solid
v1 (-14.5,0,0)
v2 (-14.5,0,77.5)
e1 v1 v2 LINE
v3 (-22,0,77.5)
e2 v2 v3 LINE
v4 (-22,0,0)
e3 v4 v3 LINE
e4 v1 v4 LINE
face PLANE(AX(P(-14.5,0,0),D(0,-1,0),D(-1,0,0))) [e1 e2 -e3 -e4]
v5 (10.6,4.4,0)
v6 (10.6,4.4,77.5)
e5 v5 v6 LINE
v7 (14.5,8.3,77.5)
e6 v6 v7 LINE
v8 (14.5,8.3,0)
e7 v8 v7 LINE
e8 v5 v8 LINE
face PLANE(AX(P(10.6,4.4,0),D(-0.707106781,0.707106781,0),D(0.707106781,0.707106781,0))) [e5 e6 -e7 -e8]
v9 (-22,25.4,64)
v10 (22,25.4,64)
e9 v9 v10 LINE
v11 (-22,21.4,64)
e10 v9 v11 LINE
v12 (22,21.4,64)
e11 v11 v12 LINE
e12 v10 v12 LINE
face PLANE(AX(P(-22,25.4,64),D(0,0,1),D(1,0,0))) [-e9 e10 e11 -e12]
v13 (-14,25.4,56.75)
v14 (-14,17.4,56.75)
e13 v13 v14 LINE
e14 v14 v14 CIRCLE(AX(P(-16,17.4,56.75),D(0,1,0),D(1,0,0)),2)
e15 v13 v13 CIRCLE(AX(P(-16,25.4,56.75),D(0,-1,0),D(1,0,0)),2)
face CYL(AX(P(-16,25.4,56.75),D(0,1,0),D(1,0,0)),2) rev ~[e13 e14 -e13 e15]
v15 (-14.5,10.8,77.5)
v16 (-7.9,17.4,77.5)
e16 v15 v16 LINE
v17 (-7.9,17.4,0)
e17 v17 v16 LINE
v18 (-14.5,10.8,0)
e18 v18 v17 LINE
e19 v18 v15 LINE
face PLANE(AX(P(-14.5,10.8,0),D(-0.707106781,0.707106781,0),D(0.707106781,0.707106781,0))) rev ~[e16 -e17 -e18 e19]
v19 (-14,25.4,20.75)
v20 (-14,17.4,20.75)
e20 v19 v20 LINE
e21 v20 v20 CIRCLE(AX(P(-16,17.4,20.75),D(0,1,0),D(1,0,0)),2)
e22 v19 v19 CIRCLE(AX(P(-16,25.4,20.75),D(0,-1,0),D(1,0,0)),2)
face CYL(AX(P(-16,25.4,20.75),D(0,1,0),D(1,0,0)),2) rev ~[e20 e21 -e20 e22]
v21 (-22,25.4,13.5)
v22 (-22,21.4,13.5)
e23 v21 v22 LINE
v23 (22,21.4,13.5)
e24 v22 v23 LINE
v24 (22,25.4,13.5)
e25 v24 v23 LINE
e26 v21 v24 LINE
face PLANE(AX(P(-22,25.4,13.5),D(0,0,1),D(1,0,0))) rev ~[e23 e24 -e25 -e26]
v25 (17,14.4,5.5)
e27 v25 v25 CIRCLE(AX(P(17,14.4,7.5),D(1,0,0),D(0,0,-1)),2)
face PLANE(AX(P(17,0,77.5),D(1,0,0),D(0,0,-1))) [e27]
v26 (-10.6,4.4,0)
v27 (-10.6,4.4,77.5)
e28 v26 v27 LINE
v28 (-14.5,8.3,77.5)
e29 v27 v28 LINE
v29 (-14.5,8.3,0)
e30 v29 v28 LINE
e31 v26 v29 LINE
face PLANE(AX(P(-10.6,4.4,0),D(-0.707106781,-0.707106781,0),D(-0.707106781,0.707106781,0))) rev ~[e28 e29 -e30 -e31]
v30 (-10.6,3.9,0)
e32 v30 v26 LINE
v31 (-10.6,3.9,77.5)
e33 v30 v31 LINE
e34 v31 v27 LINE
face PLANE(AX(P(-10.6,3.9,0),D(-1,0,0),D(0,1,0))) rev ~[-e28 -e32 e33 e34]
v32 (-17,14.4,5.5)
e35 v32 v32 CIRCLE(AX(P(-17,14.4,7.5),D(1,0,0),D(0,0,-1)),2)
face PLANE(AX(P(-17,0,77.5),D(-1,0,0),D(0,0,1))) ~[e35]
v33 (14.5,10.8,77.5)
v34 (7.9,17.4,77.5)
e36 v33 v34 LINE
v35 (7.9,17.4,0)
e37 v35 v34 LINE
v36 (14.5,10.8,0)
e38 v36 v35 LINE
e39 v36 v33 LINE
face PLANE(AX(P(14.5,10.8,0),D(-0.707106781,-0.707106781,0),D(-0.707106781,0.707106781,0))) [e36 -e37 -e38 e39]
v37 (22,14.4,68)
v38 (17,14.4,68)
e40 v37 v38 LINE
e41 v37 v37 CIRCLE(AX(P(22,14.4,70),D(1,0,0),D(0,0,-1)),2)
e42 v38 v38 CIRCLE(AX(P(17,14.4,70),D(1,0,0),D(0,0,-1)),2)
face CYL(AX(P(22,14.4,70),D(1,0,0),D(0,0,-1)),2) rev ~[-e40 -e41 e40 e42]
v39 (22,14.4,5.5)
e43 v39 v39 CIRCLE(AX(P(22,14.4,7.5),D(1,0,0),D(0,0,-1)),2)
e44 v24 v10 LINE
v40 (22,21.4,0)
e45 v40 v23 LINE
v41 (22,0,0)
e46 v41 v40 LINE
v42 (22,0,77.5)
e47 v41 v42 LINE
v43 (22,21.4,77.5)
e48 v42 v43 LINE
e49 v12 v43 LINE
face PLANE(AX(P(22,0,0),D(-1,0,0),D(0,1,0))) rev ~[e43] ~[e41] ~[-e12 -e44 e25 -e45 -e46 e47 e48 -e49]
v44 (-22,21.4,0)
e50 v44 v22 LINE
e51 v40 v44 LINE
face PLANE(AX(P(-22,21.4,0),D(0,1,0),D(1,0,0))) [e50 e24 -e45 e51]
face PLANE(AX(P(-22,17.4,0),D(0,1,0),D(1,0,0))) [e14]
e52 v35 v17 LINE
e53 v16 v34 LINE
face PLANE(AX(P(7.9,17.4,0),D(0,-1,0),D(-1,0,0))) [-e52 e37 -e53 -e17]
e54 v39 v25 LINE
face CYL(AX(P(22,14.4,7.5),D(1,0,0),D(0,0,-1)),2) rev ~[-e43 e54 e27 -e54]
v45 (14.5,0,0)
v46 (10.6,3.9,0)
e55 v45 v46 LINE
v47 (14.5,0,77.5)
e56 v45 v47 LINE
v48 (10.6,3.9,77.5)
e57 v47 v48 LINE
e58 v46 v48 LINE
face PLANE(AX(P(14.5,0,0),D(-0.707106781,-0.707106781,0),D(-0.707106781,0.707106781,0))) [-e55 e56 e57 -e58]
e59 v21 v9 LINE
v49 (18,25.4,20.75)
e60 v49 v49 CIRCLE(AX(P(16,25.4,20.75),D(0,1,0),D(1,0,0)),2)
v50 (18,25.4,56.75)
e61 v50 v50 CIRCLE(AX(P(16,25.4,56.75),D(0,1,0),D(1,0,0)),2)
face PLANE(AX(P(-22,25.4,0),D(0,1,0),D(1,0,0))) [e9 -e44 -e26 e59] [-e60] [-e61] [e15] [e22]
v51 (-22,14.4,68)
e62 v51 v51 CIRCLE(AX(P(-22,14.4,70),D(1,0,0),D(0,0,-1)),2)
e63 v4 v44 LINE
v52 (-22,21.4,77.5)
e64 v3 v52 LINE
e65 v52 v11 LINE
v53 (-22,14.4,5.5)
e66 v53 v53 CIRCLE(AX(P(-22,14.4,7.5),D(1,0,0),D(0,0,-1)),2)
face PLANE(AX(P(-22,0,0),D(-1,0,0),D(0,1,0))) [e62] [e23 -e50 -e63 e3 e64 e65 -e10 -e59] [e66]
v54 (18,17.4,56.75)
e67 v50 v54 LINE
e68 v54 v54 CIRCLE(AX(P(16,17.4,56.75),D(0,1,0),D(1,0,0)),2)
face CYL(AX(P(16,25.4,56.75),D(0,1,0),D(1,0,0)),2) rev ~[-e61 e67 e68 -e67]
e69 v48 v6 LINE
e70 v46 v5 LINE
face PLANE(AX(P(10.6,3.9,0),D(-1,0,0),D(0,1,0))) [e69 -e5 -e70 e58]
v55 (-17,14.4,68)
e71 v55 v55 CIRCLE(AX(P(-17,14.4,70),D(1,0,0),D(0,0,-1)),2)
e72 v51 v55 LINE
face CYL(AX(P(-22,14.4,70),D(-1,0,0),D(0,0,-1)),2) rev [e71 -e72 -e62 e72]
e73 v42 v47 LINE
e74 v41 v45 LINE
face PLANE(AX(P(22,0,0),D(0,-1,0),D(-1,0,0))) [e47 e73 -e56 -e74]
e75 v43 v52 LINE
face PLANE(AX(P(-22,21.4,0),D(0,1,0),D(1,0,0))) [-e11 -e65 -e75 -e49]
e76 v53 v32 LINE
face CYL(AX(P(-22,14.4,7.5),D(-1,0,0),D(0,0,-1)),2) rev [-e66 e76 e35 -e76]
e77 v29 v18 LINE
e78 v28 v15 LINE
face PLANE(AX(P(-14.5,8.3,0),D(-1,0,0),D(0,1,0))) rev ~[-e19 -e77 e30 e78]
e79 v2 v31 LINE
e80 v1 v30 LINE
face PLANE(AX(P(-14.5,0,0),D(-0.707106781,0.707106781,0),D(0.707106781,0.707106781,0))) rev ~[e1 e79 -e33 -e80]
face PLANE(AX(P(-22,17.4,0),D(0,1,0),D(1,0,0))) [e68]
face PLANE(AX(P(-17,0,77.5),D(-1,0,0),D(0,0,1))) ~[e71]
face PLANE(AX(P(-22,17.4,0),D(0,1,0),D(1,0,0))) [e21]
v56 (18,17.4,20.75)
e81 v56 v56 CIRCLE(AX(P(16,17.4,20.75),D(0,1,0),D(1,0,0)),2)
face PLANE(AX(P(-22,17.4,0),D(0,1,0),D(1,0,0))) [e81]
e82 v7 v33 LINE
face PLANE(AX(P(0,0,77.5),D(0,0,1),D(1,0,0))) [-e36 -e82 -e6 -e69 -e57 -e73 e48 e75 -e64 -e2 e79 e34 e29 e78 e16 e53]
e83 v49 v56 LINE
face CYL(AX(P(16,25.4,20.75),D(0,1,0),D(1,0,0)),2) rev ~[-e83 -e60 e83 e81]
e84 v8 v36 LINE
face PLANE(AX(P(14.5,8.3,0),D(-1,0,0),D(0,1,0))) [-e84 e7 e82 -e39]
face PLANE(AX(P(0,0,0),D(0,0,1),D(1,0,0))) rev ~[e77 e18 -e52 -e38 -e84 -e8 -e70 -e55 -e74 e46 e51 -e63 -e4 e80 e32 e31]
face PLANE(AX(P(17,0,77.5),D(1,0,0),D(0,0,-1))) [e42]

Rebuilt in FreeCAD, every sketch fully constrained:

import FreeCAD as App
import Part
import Sketcher
from FreeCAD import Vector


def add_polygon(sketch, points):
    """Adds a closed chain of lines whose ends are joined by coincident constraints."""
    first, n = sketch.GeometryCount, len(points)
    for a, b in zip(points, points[1:] + points[:1]):
        sketch.addGeometry(Part.LineSegment(App.Vector(*a, 0), App.Vector(*b, 0)), False)
    for i in range(n):
        sketch.addConstraint(Sketcher.Constraint("Coincident", first + i, 2, first + (i + 1) % n, 1))

doc = App.newDocument("Part")
params = doc.addObject("Spreadsheet::Sheet", "Params")
for row, (alias, value) in enumerate([
    ("sketch1_width", "44 mm"),
    ("sketch1_width2", "7.5 mm"),
    ("sketch1_height", "0.5 mm"),
    ("sketch1_height2", "2.5 mm"),
    ("sketch1_height3", "25.4 mm"),
    ("pad1_length", "77.5 mm"),
    ("sketch2_diameter", "4 mm"),
    ("pocket1_length", "8 mm"),
    ("sketch3_width", "44 mm"),
    ("sketch3_height", "13.5 mm"),
    ("pocket2_length", "4 mm"),
    ("sketch4_diameter", "4 mm"),
    ("pocket3_length", "5 mm"),
], start=1):
    params.set(f"A{row}", alias)
    params.set(f"B{row}", "=" + value)
    params.setAlias(f"B{row}", alias)

body = doc.addObject("PartDesign::Body", "Body")

# Sketch on XY plane
sketch1 = body.newObject("Sketcher::SketchObject", "Sketch")
sketch1.AttachmentSupport = (doc.getObject("XY_Plane"), [""])
sketch1.MapMode = "FlatFace"
add_polygon(sketch1, [(-22, 0), (-14.5, 0), (-10.6, 3.9), (-10.6, 4.4), (-14.5, 8.3), (-14.5, 10.8), (-7.9, 17.4), (7.9, 17.4), (14.5, 10.8), (14.5, 8.3), (10.6, 4.4), (10.6, 3.9), (14.5, 0), (22, 0), (22, 25.4), (-22, 25.4)])  # lines 0-15
sketch1.addConstraint(Sketcher.Constraint("Horizontal", 0))
sketch1.addConstraint(Sketcher.Constraint("Vertical", 2))
sketch1.addConstraint(Sketcher.Constraint("Vertical", 4))
sketch1.addConstraint(Sketcher.Constraint("Horizontal", 6))
sketch1.addConstraint(Sketcher.Constraint("Vertical", 8))
sketch1.addConstraint(Sketcher.Constraint("Vertical", 10))
sketch1.addConstraint(Sketcher.Constraint("Horizontal", 12))
sketch1.addConstraint(Sketcher.Constraint("Vertical", 13))
sketch1.addConstraint(Sketcher.Constraint("Horizontal", 14))
sketch1.addConstraint(Sketcher.Constraint("Vertical", 15))
sketch1.addConstraint(Sketcher.Constraint("Symmetric", 0, 2, 11, 2, -1, 1))
sketch1.addConstraint(Sketcher.Constraint("Symmetric", 4, 2, 7, 2, -2))
sketch1.addConstraint(Sketcher.Constraint("Symmetric", 2, 2, 9, 2, -2))
sketch1.addConstraint(Sketcher.Constraint("Symmetric", 12, 2, 15, 2, -2))
sketch1.addConstraint(Sketcher.Constraint("Perpendicular", 1, 3))
sketch1.addConstraint(Sketcher.Constraint("Perpendicular", 3, 5))
sketch1.addConstraint(Sketcher.Constraint("Perpendicular", 5, 7))
sketch1.addConstraint(Sketcher.Constraint("Perpendicular", 7, 9))
sketch1.addConstraint(Sketcher.Constraint("Perpendicular", 9, 11))
sketch1.addConstraint(Sketcher.Constraint("Horizontal", 3, 2, 8, 2))
sketch1.addConstraint(Sketcher.Constraint("Vertical", 0, 2, 3, 2))
sketch1.addConstraint(Sketcher.Constraint("DistanceX", 14, 2, 14, 1, 44.0))
sketch1.addConstraint(Sketcher.Constraint("DistanceX", 0, 1, 0, 2, 7.5))
sketch1.addConstraint(Sketcher.Constraint("DistanceY", 2, 1, 2, 2, 0.5))
sketch1.addConstraint(Sketcher.Constraint("DistanceY", 4, 1, 4, 2, 2.5))
sketch1.addConstraint(Sketcher.Constraint("DistanceY", 13, 1, 13, 2, 25.4))
sketch1.addConstraint(Sketcher.Constraint("DistanceX", 6, 1, 6, 2, 15.8))
sketch1.addConstraint(Sketcher.Constraint("DistanceY", 2, 2, 5, 2, 13.0))
sketch1.setExpression("Constraints[37]", "Params.sketch1_width")
sketch1.setExpression("Constraints[38]", "Params.sketch1_width2")
sketch1.setExpression("Constraints[39]", "Params.sketch1_height")
sketch1.setExpression("Constraints[40]", "Params.sketch1_height2")
sketch1.setExpression("Constraints[41]", "Params.sketch1_height3")
pad1 = body.newObject("PartDesign::Pad", "Pad")
pad1.Profile = sketch1
pad1.setExpression("Length", "Params.pad1_length")

# Sketch on XZ plane
sketch2 = body.newObject("Sketcher::SketchObject", "Sketch001")
sketch2.AttachmentSupport = (doc.getObject("XZ_Plane"), [""])
sketch2.MapMode = "FlatFace"
sketch2.AttachmentOffset = App.Placement(Vector(0, 0, -25.4), App.Rotation())
sketch2.addGeometry(Part.Circle(Vector(-16, 20.8, 0), Vector(0, 0, 1), 2), False)
sketch2.addGeometry(Part.Circle(Vector(-16, 56.8, 0), Vector(0, 0, 1), 2), False)
sketch2.addGeometry(Part.Circle(Vector(16, 20.8, 0), Vector(0, 0, 1), 2), False)
sketch2.addGeometry(Part.Circle(Vector(16, 56.8, 0), Vector(0, 0, 1), 2), False)
sketch2.addConstraint(Sketcher.Constraint("Equal", 0, 1))
sketch2.addConstraint(Sketcher.Constraint("Equal", 1, 2))
sketch2.addConstraint(Sketcher.Constraint("Equal", 2, 3))
sketch2.addConstraint(Sketcher.Constraint("Symmetric", 0, 3, 2, 3, -2))
sketch2.addConstraint(Sketcher.Constraint("Symmetric", 1, 3, 3, 3, -2))
sketch2.addConstraint(Sketcher.Constraint("Vertical", 0, 3, 1, 3))
sketch2.addConstraint(Sketcher.Constraint("Diameter", 0, 4.0))
sketch2.addConstraint(Sketcher.Constraint("DistanceY", 0, 3, 1, 3, 36.0))
sketch2.addConstraint(Sketcher.Constraint("DistanceX", 0, 3, 2, 3, 32.0))
sketch2.addConstraint(Sketcher.Constraint("DistanceY", -1, 1, 0, 3, 20.75))
sketch2.setExpression("Constraints[6]", "Params.sketch2_diameter")
pocket1 = body.newObject("PartDesign::Pocket", "Pocket")
pocket1.Profile = sketch2
pocket1.setExpression("Length", "Params.pocket1_length")
pocket1.Reversed = True

# Sketch on XZ plane
sketch3 = body.newObject("Sketcher::SketchObject", "Sketch002")
sketch3.AttachmentSupport = (doc.getObject("XZ_Plane"), [""])
sketch3.MapMode = "FlatFace"
sketch3.AttachmentOffset = App.Placement(Vector(0, 0, -25.4), App.Rotation())
add_polygon(sketch3, [(22, 78), (22, 64), (-22, 64), (-22, 78)])  # lines 0-3
add_polygon(sketch3, [(22, 14), (22, 0), (-22, 0), (-22, 14)])  # lines 4-7
sketch3.addConstraint(Sketcher.Constraint("Vertical", 0))
sketch3.addConstraint(Sketcher.Constraint("Horizontal", 1))
sketch3.addConstraint(Sketcher.Constraint("Vertical", 2))
sketch3.addConstraint(Sketcher.Constraint("Horizontal", 3))
sketch3.addConstraint(Sketcher.Constraint("Vertical", 4))
sketch3.addConstraint(Sketcher.Constraint("Horizontal", 5))
sketch3.addConstraint(Sketcher.Constraint("Vertical", 6))
sketch3.addConstraint(Sketcher.Constraint("Horizontal", 7))
sketch3.addConstraint(Sketcher.Constraint("Symmetric", 4, 2, 5, 2, -1, 1))
sketch3.addConstraint(Sketcher.Constraint("Vertical", 3, 2, 4, 2))
sketch3.addConstraint(Sketcher.Constraint("Vertical", 2, 2, 5, 2))
sketch3.addConstraint(Sketcher.Constraint("Equal", 2, 4))
sketch3.addConstraint(Sketcher.Constraint("DistanceY", 6, 2, 1, 2, 50.5))
sketch3.addConstraint(Sketcher.Constraint("DistanceX", 1, 2, 1, 1, 44.0))
sketch3.addConstraint(Sketcher.Constraint("DistanceY", 0, 2, 0, 1, 13.5))
sketch3.setExpression("Constraints[21]", "Params.sketch3_width")
sketch3.setExpression("Constraints[22]", "Params.sketch3_height")
pocket2 = body.newObject("PartDesign::Pocket", "Pocket001")
pocket2.Profile = sketch3
pocket2.setExpression("Length", "Params.pocket2_length")
pocket2.Reversed = True

# Sketch on YZ plane
sketch4 = body.newObject("Sketcher::SketchObject", "Sketch003")
sketch4.AttachmentSupport = (doc.getObject("YZ_Plane"), [""])
sketch4.MapMode = "FlatFace"
sketch4.AttachmentOffset = App.Placement(Vector(0, 0, 22), App.Rotation())
sketch4.addGeometry(Part.Circle(Vector(14.4, 70, 0), Vector(0, 0, 1), 2), False)
sketch4.addGeometry(Part.Circle(Vector(14.4, 7.5, 0), Vector(0, 0, 1), 2), False)
sketch4.addConstraint(Sketcher.Constraint("Equal", 0, 1))
sketch4.addConstraint(Sketcher.Constraint("Vertical", 0, 3, 1, 3))
sketch4.addConstraint(Sketcher.Constraint("Diameter", 0, 4.0))
sketch4.addConstraint(Sketcher.Constraint("DistanceY", -1, 1, 0, 3, 70.0))
sketch4.addConstraint(Sketcher.Constraint("DistanceX", -1, 1, 0, 3, 14.4))
sketch4.addConstraint(Sketcher.Constraint("DistanceY", -1, 1, 1, 3, 7.5))
sketch4.setExpression("Constraints[2]", "Params.sketch4_diameter")
pocket3 = body.newObject("PartDesign::Pocket", "Pocket002")
pocket3.Profile = sketch4
pocket3.setExpression("Length", "Params.pocket3_length")
doc.recompute()

mirrored = body.newObject("PartDesign::Mirrored", "Mirrored")
mirrored.Originals = [pocket3]
mirrored.MirrorPlane = (doc.getObject("YZ_Plane"), [""])
body.Tip = mirrored

doc.recompute()
